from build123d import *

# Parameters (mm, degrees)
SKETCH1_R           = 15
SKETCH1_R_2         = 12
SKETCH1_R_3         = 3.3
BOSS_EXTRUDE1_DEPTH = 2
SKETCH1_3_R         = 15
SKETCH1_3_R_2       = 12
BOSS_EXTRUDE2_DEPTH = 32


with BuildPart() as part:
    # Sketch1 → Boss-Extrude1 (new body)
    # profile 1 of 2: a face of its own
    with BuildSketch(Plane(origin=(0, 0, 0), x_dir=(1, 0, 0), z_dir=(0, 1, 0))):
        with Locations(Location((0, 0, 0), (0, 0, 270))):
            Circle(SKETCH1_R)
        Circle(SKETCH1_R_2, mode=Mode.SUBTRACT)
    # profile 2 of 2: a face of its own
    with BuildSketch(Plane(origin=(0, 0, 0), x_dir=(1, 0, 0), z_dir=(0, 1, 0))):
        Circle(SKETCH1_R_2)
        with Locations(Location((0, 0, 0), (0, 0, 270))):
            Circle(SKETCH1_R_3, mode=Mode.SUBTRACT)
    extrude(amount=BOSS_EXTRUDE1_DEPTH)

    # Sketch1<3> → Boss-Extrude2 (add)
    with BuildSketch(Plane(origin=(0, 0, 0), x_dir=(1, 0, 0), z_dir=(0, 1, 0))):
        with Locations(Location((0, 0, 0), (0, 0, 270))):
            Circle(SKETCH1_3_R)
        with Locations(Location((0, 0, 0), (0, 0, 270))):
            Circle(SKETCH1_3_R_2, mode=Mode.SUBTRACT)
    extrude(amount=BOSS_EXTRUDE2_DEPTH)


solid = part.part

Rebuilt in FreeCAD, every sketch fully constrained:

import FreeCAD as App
import Part
import Sketcher

V = App.Vector
Q = App.Units.Quantity

doc = App.newDocument("Part")
params = doc.addObject("Spreadsheet::Sheet", "Params")
for row, (alias, value) in enumerate([
    ("sketch1_diameter", "30 mm"),
    ("sketch1_diameter2", "6.6 mm"),
    ("pad1_length", "2 mm"),
    ("sketch2_diameter", "30 mm"),
    ("sketch2_diameter2", "24 mm"),
    ("pad2_length", "32 mm"),
], start=1):
    params.set(f"A{row}", alias)
    params.set(f"B{row}", "=" + value)
    params.setAlias(f"B{row}", alias)

body = doc.addObject("PartDesign::Body", "Body")

sketch1 = doc.addObject("Sketcher::SketchObject", "Sketch")
body.addObject(sketch1)
sketch1.AttachmentSupport = (doc.XZ_Plane, [""])
sketch1.MapMode = "FlatFace"
sketch1.addGeometry([
    Part.Circle(V(0, 0, 0), V(0, 0, 1), 15),
    Part.Circle(V(0, 0, 0), V(0, 0, 1), 3.3),
], False)
sketch1.addConstraint([
    Sketcher.Constraint("Coincident", 0, 3, -1, 1),
    Sketcher.Constraint("Coincident", 1, 3, -1, 1),
    Sketcher.Constraint("Diameter", 0, Q("30 mm")),
    Sketcher.Constraint("Diameter", 1, Q("6.6 mm")),
])
sketch1.setExpression("Constraints[2]", "Params.sketch1_diameter")
sketch1.setExpression("Constraints[3]", "Params.sketch1_diameter2")
pad1 = doc.addObject("PartDesign::Pad", "Pad")
body.addObject(pad1)
pad1.Profile = sketch1
pad1.setExpression("Length", "Params.pad1_length")
pad1.Reversed = True

sketch2 = doc.addObject("Sketcher::SketchObject", "Sketch001")
body.addObject(sketch2)
sketch2.AttachmentSupport = (doc.XZ_Plane, [""])
sketch2.MapMode = "FlatFace"
sketch2.addGeometry([
    Part.Circle(V(0, 0, 0), V(0, 0, 1), 15),
    Part.Circle(V(0, 0, 0), V(0, 0, 1), 12),
], False)
sketch2.addConstraint([
    Sketcher.Constraint("Coincident", 0, 3, -1, 1),
    Sketcher.Constraint("Coincident", 1, 3, -1, 1),
    Sketcher.Constraint("Diameter", 0, Q("30 mm")),
    Sketcher.Constraint("Diameter", 1, Q("24 mm")),
])
sketch2.setExpression("Constraints[2]", "Params.sketch2_diameter")
sketch2.setExpression("Constraints[3]", "Params.sketch2_diameter2")
pad2 = doc.addObject("PartDesign::Pad", "Pad001")
body.addObject(pad2)
pad2.Profile = sketch2
pad2.setExpression("Length", "Params.pad2_length")
pad2.Reversed = True

doc.recompute()
